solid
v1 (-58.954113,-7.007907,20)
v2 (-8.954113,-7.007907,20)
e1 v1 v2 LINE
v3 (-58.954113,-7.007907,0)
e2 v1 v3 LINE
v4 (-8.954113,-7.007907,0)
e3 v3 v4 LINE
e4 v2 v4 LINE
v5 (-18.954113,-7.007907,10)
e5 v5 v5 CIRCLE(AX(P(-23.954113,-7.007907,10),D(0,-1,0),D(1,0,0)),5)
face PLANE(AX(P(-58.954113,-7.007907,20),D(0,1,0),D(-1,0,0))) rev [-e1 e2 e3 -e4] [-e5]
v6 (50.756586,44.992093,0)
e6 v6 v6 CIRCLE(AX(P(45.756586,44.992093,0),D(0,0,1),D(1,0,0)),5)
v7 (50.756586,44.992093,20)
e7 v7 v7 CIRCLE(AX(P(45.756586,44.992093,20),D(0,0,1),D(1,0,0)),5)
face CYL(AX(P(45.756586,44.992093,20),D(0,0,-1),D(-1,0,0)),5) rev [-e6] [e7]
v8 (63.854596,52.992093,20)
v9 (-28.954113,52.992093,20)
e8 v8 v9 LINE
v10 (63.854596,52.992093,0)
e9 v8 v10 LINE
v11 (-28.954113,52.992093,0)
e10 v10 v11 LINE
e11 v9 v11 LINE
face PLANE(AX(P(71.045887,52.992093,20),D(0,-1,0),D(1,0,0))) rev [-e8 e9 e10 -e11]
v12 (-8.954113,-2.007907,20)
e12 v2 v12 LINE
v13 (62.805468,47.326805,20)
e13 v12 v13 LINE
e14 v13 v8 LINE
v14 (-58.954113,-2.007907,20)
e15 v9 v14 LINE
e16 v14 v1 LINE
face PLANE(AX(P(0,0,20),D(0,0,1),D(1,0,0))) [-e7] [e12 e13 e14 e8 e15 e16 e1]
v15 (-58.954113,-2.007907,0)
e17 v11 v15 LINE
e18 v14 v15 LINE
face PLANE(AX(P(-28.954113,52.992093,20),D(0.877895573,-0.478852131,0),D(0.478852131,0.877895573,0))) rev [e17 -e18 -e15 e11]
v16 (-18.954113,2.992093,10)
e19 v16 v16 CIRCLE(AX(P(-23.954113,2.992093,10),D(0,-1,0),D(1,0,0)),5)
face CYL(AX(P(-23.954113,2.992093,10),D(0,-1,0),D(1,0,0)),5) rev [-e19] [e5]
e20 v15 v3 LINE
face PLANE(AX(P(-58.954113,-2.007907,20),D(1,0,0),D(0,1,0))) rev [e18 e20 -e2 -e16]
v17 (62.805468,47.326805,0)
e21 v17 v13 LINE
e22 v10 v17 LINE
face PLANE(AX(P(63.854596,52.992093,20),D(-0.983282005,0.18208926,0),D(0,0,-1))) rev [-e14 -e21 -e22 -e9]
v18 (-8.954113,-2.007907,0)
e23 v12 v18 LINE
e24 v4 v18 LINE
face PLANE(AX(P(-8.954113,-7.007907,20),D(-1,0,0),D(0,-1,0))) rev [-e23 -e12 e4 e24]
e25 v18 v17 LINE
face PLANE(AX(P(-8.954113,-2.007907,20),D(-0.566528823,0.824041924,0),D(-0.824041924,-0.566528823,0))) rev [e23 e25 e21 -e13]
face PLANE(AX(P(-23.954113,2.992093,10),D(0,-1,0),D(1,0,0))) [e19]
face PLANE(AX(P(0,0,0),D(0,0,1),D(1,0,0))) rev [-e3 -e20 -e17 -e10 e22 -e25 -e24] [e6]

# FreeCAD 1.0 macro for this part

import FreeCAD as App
import Part
import Sketcher
Q = App.Units.Quantity


def edges_at(feature, points):
    """Names of the edges that pass closest to the given points."""
    edges = feature.Shape.Edges
    near = lambda p: min(range(len(edges)), key=lambda i: edges[i].distToShape(Part.Vertex(*p))[0])
    return sorted({f"Edge{near(p) + 1}" for p in points})

doc = App.newDocument("Part")
body = doc.addObject("PartDesign::Body", "Body")

# Sketch on XY plane
sketch1 = body.newObject("Sketcher::SketchObject", "Sketch")
sketch1.AttachmentSupport = (doc.getObject("XY_Plane"), [""])
sketch1.MapMode = "FlatFace"
sketch1.addGeometry(Part.LineSegment(App.Vector(-59, -2, 0), App.Vector(-59, -7, 0)), False)
sketch1.addGeometry(Part.LineSegment(App.Vector(-59, -7, 0), App.Vector(-9, -7, 0)), False)
sketch1.addGeometry(Part.LineSegment(App.Vector(-9, -7, 0), App.Vector(-9, -2, 0)), False)
sketch1.addGeometry(Part.LineSegment(App.Vector(-9, -2, 0), App.Vector(71, 53, 0)), False)
sketch1.addGeometry(Part.LineSegment(App.Vector(71, 53, 0), App.Vector(-29, 53, 0)), False)
sketch1.addGeometry(Part.LineSegment(App.Vector(-29, 53, 0), App.Vector(-59, -2, 0)), False)
sketch1.addGeometry(Part.Circle(App.Vector(46, 45, 0), App.Vector(0, 0, 1), 5), False)
sketch1.addConstraint(Sketcher.Constraint("Coincident", 0, 2, 1, 1))
sketch1.addConstraint(Sketcher.Constraint("Coincident", 1, 2, 2, 1))
sketch1.addConstraint(Sketcher.Constraint("Coincident", 2, 2, 3, 1))
sketch1.addConstraint(Sketcher.Constraint("Coincident", 3, 2, 4, 1))
sketch1.addConstraint(Sketcher.Constraint("Coincident", 4, 2, 5, 1))
sketch1.addConstraint(Sketcher.Constraint("Coincident", 5, 2, 0, 1))
sketch1.addConstraint(Sketcher.Constraint("Vertical", 0))
sketch1.addConstraint(Sketcher.Constraint("Horizontal", 1))
sketch1.addConstraint(Sketcher.Constraint("Vertical", 2))
sketch1.addConstraint(Sketcher.Constraint("Horizontal", 4))
sketch1.addConstraint(Sketcher.Constraint("Horizontal", 2, 2, 5, 2))
sketch1.addConstraint(Sketcher.Constraint("Diameter", 6, Q("10 mm")))
sketch1.addConstraint(Sketcher.Constraint("DistanceX", 1, 1, 1, 2, Q("50 mm")))
sketch1.addConstraint(Sketcher.Constraint("DistanceX", 4, 2, 4, 1, Q("100 mm")))
sketch1.addConstraint(Sketcher.Constraint("DistanceY", 0, 2, 0, 1, Q("5 mm")))
sketch1.addConstraint(Sketcher.Constraint("DistanceY", 0, 2, 6, 3, Q("52 mm")))
sketch1.addConstraint(Sketcher.Constraint("DistanceY", 6, 3, 3, 2, Q("8 mm")))
sketch1.addConstraint(Sketcher.Constraint("DistanceX", 2, 2, 3, 2, Q("80 mm")))
sketch1.addConstraint(Sketcher.Constraint("DistanceX", 0, 2, 6, 3, Q("104.710698 mm")))
sketch1.addConstraint(Sketcher.Constraint("DistanceX", -1, 1, 6, 3, Q("45.756586 mm")))
sketch1.addConstraint(Sketcher.Constraint("DistanceY", -1, 1, 6, 3, Q("44.992093 mm")))
pad1 = body.newObject("PartDesign::Pad", "Pad")
pad1.Profile = sketch1
pad1.Length = 20
doc.recompute()

chamfer = body.newObject("PartDesign::Chamfer", "Chamfer")
chamfer.Base = (pad1, edges_at(pad1, [(71.046, 52.992, 10)]))
chamfer.ChamferType = "Two distances"
chamfer.Size = 10
chamfer.Size2 = 7.191292

# Sketch on XZ plane
sketch2 = body.newObject("Sketcher::SketchObject", "Sketch001")
sketch2.AttachmentSupport = (doc.getObject("XZ_Plane"), [""])
sketch2.MapMode = "FlatFace"
sketch2.AttachmentOffset = App.Placement(App.Vector(0, 0, 7.007907), App.Rotation())
sketch2.addGeometry(Part.Circle(App.Vector(-24, 10, 0), App.Vector(0, 0, 1), 5), False)
sketch2.addConstraint(Sketcher.Constraint("Diameter", 0, Q("10 mm")))
sketch2.addConstraint(Sketcher.Constraint("DistanceY", -1, 1, 0, 3, Q("10 mm")))
sketch2.addConstraint(Sketcher.Constraint("DistanceX", 0, 3, -1, 1, Q("23.954113 mm")))
pocket1 = body.newObject("PartDesign::Pocket", "Pocket")
pocket1.Profile = sketch2
pocket1.Length = 10

doc.recompute()
